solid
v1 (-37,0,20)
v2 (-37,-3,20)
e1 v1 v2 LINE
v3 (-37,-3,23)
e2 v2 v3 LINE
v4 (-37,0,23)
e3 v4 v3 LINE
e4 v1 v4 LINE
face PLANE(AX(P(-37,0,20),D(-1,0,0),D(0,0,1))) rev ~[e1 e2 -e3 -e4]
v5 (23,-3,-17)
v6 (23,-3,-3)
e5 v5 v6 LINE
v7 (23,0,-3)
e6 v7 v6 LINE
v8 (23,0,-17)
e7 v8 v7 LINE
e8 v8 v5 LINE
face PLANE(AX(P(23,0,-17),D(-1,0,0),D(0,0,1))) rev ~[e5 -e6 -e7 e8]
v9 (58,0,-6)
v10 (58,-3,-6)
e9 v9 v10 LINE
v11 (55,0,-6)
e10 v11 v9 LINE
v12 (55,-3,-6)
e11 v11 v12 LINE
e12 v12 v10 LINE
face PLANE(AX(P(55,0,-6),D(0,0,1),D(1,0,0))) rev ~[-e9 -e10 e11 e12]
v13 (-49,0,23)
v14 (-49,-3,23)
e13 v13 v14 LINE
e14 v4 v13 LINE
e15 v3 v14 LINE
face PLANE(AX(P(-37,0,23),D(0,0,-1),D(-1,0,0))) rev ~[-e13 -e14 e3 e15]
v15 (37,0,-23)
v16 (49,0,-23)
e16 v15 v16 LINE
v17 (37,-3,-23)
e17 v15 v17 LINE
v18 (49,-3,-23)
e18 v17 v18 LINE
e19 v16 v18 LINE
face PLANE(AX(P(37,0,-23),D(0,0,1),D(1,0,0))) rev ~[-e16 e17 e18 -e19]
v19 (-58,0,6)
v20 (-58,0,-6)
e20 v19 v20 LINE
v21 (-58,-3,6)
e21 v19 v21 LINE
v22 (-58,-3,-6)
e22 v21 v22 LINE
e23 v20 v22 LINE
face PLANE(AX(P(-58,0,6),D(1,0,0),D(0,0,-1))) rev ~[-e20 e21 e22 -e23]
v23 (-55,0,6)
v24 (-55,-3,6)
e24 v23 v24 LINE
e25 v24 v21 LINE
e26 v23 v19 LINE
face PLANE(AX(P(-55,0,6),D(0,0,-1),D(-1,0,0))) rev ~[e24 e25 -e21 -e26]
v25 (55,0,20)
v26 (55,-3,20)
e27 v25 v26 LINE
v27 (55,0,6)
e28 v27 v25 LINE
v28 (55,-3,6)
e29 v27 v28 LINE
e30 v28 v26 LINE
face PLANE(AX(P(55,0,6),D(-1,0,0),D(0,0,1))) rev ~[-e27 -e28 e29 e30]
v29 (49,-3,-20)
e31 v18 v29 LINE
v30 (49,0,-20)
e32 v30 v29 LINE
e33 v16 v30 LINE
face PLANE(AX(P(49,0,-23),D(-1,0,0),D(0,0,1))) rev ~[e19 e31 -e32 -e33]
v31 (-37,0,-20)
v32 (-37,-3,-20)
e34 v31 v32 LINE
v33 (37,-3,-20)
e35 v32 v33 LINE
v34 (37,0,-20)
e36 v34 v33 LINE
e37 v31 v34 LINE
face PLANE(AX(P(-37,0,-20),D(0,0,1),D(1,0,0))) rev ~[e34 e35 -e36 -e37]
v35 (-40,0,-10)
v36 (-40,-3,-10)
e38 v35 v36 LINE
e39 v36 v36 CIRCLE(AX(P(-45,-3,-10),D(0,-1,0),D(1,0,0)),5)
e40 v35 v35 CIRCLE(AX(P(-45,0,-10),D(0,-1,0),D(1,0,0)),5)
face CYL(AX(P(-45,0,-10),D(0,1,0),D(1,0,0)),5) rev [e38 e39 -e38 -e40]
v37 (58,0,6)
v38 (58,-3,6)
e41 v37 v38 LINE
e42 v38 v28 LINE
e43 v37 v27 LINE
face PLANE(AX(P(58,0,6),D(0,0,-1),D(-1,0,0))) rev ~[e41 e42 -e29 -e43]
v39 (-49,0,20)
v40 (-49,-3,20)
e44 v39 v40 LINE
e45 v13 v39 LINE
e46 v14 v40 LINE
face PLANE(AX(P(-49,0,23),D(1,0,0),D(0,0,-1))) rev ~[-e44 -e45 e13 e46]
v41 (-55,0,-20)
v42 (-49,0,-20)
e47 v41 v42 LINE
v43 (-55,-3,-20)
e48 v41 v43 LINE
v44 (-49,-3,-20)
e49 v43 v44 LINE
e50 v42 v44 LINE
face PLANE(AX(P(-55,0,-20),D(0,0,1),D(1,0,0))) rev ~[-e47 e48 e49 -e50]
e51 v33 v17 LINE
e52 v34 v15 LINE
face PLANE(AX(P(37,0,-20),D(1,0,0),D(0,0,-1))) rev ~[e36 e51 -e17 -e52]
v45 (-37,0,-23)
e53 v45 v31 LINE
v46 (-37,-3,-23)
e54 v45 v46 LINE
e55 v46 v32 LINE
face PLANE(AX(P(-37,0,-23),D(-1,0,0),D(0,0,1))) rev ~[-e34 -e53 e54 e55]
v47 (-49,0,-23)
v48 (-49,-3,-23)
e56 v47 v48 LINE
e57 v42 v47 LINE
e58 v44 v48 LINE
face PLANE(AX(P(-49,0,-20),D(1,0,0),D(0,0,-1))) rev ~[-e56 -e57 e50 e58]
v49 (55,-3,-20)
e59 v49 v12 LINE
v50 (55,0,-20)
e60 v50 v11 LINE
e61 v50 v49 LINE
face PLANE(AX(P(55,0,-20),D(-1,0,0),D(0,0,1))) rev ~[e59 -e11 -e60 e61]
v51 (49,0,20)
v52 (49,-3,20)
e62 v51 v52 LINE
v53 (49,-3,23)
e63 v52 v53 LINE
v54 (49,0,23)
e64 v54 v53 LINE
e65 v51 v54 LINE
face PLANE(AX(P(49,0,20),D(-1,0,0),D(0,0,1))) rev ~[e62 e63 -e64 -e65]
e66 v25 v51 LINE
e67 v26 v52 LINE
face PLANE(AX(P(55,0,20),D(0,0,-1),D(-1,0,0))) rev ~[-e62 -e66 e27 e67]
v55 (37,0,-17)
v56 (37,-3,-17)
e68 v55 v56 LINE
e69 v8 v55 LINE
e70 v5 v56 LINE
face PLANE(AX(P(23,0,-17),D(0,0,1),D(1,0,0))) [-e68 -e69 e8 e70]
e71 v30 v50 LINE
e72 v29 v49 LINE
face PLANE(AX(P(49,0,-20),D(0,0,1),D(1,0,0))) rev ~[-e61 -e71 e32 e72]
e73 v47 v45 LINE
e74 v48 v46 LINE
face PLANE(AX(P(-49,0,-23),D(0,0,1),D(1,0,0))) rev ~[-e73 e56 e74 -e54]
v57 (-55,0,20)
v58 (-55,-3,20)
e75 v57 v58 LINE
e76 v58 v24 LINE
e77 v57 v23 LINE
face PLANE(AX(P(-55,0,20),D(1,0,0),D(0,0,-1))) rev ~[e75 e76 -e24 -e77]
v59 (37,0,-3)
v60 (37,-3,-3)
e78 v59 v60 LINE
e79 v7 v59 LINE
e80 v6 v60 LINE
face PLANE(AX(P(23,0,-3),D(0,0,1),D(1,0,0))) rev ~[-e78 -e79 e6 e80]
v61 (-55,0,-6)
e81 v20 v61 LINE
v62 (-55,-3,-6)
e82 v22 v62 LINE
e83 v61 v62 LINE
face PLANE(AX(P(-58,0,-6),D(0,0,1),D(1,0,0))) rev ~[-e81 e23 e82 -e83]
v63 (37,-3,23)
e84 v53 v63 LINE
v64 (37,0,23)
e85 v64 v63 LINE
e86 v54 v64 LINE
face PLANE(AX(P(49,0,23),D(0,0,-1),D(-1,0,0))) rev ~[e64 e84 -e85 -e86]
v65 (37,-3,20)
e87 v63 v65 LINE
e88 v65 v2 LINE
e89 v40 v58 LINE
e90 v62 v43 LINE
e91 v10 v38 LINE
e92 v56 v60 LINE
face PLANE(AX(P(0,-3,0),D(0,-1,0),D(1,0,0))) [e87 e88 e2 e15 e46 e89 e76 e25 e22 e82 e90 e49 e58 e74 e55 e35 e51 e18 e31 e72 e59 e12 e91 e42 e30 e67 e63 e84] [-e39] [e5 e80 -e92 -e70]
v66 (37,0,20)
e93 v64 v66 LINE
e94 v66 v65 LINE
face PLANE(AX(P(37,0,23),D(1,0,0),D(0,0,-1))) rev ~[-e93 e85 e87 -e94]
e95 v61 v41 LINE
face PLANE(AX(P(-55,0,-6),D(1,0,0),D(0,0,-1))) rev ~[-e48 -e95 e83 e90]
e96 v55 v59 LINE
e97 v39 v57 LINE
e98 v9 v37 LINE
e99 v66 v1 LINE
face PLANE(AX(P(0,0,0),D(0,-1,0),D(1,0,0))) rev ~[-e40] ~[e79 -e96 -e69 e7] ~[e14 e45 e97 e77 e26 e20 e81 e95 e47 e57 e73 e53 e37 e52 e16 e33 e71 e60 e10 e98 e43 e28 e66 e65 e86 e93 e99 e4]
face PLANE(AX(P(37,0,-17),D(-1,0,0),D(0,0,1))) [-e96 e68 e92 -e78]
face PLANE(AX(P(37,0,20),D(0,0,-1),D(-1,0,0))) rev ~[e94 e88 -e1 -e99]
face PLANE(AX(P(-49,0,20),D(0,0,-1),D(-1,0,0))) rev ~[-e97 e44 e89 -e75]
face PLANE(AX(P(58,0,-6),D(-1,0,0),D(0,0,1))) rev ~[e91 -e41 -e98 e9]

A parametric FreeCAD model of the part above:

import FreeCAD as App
import Part
import Sketcher

V = App.Vector
Q = App.Units.Quantity


def add_polygon(sketch, points):
    """Adds a closed chain of lines whose ends are joined by coincident constraints."""
    first, n = sketch.GeometryCount, len(points)
    for a, b in zip(points, points[1:] + points[:1]):
        sketch.addGeometry(Part.LineSegment(App.Vector(*a, 0), App.Vector(*b, 0)), False)
    for i in range(n):
        sketch.addConstraint(Sketcher.Constraint("Coincident", first + i, 2, first + (i + 1) % n, 1))

doc = App.newDocument("Part")
body = doc.addObject("PartDesign::Body", "Body")

# Sketch on XZ plane
sketch1 = body.newObject("Sketcher::SketchObject", "Sketch")
sketch1.AttachmentSupport = (doc.getObject("XZ_Plane"), [""])
sketch1.MapMode = "FlatFace"
add_polygon(sketch1, [(55, 6), (55, 20), (49, 20), (49, 23), (37, 23), (37, 20), (-37, 20), (-37, 23), (-49, 23), (-49, 20), (-55, 20), (-55, 6), (-58, 6), (-58, -6), (-55, -6), (-55, -20), (-49, -20), (-49, -23), (-37, -23), (-37, -20), (37, -20), (37, -23), (49, -23), (49, -20), (55, -20), (55, -6), (58, -6), (58, 6)])  # lines 0-27
sketch1.addGeometry(Part.Circle(V(-45, -10, 0), V(0, 0, 1), 5), False)  # 28
add_polygon(sketch1, [(37, -17), (23, -17), (23, -3), (37, -3)])  # lines 29-32
sketch1.addConstraint(Sketcher.Constraint("Vertical", 0))
sketch1.addConstraint(Sketcher.Constraint("Horizontal", 1))
sketch1.addConstraint(Sketcher.Constraint("Vertical", 2))
sketch1.addConstraint(Sketcher.Constraint("Horizontal", 3))
sketch1.addConstraint(Sketcher.Constraint("Vertical", 4))
sketch1.addConstraint(Sketcher.Constraint("Horizontal", 5))
sketch1.addConstraint(Sketcher.Constraint("Vertical", 6))
sketch1.addConstraint(Sketcher.Constraint("Horizontal", 7))
sketch1.addConstraint(Sketcher.Constraint("Vertical", 8))
sketch1.addConstraint(Sketcher.Constraint("Horizontal", 9))
sketch1.addConstraint(Sketcher.Constraint("Vertical", 10))
sketch1.addConstraint(Sketcher.Constraint("Horizontal", 11))
sketch1.addConstraint(Sketcher.Constraint("Vertical", 12))
sketch1.addConstraint(Sketcher.Constraint("Horizontal", 13))
sketch1.addConstraint(Sketcher.Constraint("Vertical", 14))
sketch1.addConstraint(Sketcher.Constraint("Horizontal", 15))
sketch1.addConstraint(Sketcher.Constraint("Vertical", 16))
sketch1.addConstraint(Sketcher.Constraint("Horizontal", 17))
sketch1.addConstraint(Sketcher.Constraint("Vertical", 18))
sketch1.addConstraint(Sketcher.Constraint("Horizontal", 19))
sketch1.addConstraint(Sketcher.Constraint("Vertical", 20))
sketch1.addConstraint(Sketcher.Constraint("Horizontal", 21))
sketch1.addConstraint(Sketcher.Constraint("Vertical", 22))
sketch1.addConstraint(Sketcher.Constraint("Horizontal", 23))
sketch1.addConstraint(Sketcher.Constraint("Vertical", 24))
sketch1.addConstraint(Sketcher.Constraint("Horizontal", 25))
sketch1.addConstraint(Sketcher.Constraint("Vertical", 26))
sketch1.addConstraint(Sketcher.Constraint("Horizontal", 27))
sketch1.addConstraint(Sketcher.Constraint("Horizontal", 29))
sketch1.addConstraint(Sketcher.Constraint("Vertical", 30))
sketch1.addConstraint(Sketcher.Constraint("Horizontal", 31))
sketch1.addConstraint(Sketcher.Constraint("Vertical", 32))
sketch1.addConstraint(Sketcher.Constraint("Symmetric", 0, 2, 14, 2, -1, 1))
sketch1.addConstraint(Sketcher.Constraint("Symmetric", 2, 2, 16, 2, -1, 1))
sketch1.addConstraint(Sketcher.Constraint("Symmetric", 4, 2, 18, 2, -1, 1))
sketch1.addConstraint(Sketcher.Constraint("Symmetric", 6, 2, 20, 2, -1, 1))
sketch1.addConstraint(Sketcher.Constraint("Symmetric", 8, 2, 22, 2, -1, 1))
sketch1.addConstraint(Sketcher.Constraint("Symmetric", 10, 2, 24, 2, -1, 1))
sketch1.addConstraint(Sketcher.Constraint("Symmetric", 12, 2, 26, 2, -1, 1))
sketch1.addConstraint(Sketcher.Constraint("Symmetric", 3, 2, 6, 2, -2))
sketch1.addConstraint(Sketcher.Constraint("Symmetric", 1, 2, 8, 2, -2))
sketch1.addConstraint(Sketcher.Constraint("Symmetric", 13, 2, 24, 2, -2))
sketch1.addConstraint(Sketcher.Constraint("Horizontal", 1, 2, 4, 2))
sketch1.addConstraint(Sketcher.Constraint("Vertical", 20, 2, 31, 2))
sketch1.addConstraint(Sketcher.Constraint("Equal", 31, 0))
sketch1.addConstraint(Sketcher.Constraint("Equal", 27, 2))
sketch1.addConstraint(Sketcher.Constraint("Equal", 21, 12))
sketch1.addConstraint(Sketcher.Constraint("Equal", 24, 30))
sketch1.addConstraint(Sketcher.Constraint("Diameter", 28, Q("10 mm")))
sketch1.addConstraint(Sketcher.Constraint("DistanceX", 1, 2, 1, 1, Q("6 mm")))
sketch1.addConstraint(Sketcher.Constraint("DistanceX", 3, 2, 3, 1, Q("12 mm")))
sketch1.addConstraint(Sketcher.Constraint("DistanceX", 5, 2, 5, 1, Q("74 mm")))
sketch1.addConstraint(Sketcher.Constraint("DistanceX", 11, 2, 11, 1, Q("3 mm")))
sketch1.addConstraint(Sketcher.Constraint("DistanceX", 29, 2, 29, 1, Q("14 mm")))
sketch1.addConstraint(Sketcher.Constraint("DistanceX", 28, 3, -1, 1, Q("45 mm")))
sketch1.addConstraint(Sketcher.Constraint("DistanceY", 28, 3, -1, 1, Q("10 mm")))
sketch1.addConstraint(Sketcher.Constraint("DistanceY", 29, 2, -1, 1, Q("17 mm")))
pad1 = body.newObject("PartDesign::Pad", "Pad")
pad1.Profile = sketch1
pad1.Length = 3

doc.recompute()
